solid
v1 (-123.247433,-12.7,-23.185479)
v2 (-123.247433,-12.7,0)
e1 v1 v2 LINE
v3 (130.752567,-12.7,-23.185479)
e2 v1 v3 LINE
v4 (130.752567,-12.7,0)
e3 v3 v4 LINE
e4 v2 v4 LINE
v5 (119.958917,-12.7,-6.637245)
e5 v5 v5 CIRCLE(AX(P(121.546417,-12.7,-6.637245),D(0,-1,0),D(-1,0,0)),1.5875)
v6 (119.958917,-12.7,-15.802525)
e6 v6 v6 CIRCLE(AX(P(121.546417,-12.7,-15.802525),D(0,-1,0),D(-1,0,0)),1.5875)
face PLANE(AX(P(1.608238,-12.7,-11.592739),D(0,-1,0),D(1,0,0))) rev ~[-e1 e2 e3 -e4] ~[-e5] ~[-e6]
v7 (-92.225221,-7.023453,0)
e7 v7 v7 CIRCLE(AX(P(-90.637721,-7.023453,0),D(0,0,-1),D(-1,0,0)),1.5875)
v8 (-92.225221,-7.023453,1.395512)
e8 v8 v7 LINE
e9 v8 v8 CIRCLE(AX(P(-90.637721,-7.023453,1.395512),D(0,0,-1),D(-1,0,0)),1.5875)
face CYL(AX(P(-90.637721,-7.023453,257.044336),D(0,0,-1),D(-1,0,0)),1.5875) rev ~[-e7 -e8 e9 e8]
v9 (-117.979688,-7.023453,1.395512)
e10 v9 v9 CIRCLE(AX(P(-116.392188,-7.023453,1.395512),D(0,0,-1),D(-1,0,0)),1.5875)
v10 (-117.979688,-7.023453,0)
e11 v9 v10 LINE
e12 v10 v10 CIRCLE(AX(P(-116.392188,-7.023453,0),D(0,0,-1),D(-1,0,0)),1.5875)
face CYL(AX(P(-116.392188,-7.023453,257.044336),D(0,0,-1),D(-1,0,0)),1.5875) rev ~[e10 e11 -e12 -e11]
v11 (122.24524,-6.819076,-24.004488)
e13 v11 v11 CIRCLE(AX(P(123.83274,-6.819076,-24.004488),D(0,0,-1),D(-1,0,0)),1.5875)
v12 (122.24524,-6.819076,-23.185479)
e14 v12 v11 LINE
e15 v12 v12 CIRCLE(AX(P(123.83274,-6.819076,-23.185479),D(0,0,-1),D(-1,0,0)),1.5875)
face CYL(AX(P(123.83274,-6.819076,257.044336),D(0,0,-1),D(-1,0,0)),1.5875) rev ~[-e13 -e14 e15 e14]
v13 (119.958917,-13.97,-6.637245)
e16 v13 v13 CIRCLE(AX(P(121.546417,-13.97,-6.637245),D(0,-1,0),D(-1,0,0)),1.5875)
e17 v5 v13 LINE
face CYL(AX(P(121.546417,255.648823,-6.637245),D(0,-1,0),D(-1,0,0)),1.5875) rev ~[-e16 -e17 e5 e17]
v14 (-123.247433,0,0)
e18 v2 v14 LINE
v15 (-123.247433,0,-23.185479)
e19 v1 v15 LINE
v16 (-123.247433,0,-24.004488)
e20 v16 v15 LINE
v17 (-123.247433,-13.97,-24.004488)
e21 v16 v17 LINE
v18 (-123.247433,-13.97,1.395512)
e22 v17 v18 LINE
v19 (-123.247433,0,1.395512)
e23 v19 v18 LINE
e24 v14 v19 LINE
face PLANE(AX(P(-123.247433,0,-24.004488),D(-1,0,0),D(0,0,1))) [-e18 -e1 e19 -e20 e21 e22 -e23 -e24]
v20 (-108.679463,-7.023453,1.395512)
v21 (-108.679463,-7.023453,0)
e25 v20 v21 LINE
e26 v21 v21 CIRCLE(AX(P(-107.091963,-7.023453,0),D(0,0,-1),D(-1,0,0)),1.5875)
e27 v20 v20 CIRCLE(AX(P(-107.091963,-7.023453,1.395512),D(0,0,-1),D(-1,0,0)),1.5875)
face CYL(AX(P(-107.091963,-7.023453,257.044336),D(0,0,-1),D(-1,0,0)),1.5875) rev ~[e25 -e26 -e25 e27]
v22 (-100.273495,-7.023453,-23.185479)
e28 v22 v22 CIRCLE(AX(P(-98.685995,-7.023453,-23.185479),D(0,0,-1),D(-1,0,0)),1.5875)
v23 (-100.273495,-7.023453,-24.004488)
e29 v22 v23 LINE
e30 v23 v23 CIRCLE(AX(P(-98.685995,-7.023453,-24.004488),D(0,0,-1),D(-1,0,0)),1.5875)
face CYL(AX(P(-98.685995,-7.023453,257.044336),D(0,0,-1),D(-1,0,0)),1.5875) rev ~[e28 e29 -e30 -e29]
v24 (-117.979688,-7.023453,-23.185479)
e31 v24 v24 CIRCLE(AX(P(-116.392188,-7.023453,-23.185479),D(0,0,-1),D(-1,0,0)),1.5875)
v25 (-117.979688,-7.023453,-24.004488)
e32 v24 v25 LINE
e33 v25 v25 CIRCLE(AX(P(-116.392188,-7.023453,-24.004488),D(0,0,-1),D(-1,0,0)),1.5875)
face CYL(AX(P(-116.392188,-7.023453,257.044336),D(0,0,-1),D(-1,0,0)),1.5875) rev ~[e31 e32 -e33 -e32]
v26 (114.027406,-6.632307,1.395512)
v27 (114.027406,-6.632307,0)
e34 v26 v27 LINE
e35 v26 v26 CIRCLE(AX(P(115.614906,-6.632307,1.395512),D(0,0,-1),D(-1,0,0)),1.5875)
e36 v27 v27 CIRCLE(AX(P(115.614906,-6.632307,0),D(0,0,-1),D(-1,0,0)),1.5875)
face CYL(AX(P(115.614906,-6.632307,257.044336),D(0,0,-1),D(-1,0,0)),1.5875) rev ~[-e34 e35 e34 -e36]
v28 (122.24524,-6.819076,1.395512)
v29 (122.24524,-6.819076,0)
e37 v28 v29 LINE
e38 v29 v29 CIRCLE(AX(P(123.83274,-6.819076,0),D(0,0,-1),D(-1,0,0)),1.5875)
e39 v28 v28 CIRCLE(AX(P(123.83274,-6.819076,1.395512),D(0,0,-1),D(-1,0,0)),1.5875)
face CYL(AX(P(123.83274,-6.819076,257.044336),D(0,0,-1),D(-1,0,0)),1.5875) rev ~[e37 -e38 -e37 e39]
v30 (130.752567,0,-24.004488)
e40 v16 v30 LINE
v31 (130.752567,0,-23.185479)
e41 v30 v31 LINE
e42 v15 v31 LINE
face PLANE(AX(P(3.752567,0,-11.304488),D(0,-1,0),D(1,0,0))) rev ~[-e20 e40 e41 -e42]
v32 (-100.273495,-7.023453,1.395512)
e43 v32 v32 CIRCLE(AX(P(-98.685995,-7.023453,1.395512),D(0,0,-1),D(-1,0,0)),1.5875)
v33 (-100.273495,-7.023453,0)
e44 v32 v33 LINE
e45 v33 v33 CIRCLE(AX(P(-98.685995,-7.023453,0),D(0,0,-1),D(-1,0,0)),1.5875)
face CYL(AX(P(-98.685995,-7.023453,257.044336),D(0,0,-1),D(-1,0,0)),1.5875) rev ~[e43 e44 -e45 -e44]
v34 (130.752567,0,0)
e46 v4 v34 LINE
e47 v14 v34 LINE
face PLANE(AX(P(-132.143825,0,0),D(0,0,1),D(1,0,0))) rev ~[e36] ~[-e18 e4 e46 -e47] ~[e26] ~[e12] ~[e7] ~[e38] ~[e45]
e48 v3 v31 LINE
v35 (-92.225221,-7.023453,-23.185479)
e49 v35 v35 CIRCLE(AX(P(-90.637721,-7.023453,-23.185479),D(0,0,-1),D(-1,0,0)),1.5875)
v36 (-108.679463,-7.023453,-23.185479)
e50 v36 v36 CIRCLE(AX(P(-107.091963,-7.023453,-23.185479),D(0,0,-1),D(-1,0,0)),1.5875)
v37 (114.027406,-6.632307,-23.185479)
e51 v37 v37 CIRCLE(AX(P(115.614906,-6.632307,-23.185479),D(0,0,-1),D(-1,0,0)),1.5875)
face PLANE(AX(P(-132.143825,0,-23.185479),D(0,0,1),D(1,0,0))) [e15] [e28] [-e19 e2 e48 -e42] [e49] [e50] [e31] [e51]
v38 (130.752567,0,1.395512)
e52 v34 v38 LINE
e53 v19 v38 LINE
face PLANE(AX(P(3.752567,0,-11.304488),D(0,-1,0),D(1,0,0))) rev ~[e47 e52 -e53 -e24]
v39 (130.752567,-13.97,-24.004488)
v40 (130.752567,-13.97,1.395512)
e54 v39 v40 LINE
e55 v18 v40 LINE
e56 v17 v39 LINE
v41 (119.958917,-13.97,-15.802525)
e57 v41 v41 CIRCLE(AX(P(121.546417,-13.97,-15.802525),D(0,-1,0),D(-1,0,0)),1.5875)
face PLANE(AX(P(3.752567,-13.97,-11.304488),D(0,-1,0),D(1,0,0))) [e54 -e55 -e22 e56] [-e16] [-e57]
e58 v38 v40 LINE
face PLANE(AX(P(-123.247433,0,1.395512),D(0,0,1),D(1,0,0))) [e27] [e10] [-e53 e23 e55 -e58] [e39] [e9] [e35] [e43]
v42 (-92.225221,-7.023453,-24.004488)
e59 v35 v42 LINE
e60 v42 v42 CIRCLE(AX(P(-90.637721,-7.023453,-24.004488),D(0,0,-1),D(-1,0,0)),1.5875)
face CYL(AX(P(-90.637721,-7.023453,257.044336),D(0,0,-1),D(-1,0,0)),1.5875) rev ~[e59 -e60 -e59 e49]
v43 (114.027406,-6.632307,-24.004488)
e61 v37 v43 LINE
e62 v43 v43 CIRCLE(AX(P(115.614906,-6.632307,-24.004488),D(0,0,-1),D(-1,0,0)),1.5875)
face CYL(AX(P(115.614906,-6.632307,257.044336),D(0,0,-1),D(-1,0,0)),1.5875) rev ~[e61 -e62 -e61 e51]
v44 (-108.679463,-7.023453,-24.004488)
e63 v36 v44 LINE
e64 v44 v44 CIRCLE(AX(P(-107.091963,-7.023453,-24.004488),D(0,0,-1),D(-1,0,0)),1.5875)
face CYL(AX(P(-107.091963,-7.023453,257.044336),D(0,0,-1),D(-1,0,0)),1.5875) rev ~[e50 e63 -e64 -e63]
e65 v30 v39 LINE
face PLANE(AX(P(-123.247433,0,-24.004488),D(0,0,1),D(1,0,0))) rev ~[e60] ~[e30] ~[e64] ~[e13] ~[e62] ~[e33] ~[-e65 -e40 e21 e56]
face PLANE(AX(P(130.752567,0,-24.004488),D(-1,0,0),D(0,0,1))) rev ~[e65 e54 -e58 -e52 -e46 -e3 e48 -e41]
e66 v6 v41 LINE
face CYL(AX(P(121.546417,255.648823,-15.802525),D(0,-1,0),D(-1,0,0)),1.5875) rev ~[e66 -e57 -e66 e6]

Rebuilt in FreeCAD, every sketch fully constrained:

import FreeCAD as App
import Part
import Sketcher

V = App.Vector
Q = App.Units.Quantity

doc = App.newDocument("Part")
body = doc.addObject("PartDesign::Body", "Body")

sketch1 = body.newObject("Sketcher::SketchObject", "Sketch")
sketch1.AttachmentSupport = (doc.getObject("XZ_Plane"), [""])
sketch1.MapMode = "FlatFace"
sketch1.addGeometry([
    Part.LineSegment(V(-123, 1, 0), V(-123, -24, 0)),
    Part.LineSegment(V(-123, -24, 0), V(131, -24, 0)),
    Part.LineSegment(V(131, -24, 0), V(131, 1, 0)),
    Part.LineSegment(V(131, 1, 0), V(-123, 1, 0)),
], False)
sketch1.addConstraint([
    Sketcher.Constraint("Coincident", 0, 2, 1, 1),
    Sketcher.Constraint("Coincident", 1, 2, 2, 1),
    Sketcher.Constraint("Coincident", 2, 2, 3, 1),
    Sketcher.Constraint("Coincident", 3, 2, 0, 1),
    Sketcher.Constraint("Vertical", 0),
    Sketcher.Constraint("Horizontal", 1),
    Sketcher.Constraint("Vertical", 2),
    Sketcher.Constraint("Horizontal", 3),
    Sketcher.Constraint("DistanceX", 1, 1, 1, 2, Q("10 in")),
    Sketcher.Constraint("DistanceY", 0, 2, 0, 1, Q("1 in")),
    Sketcher.Constraint("DistanceX", 0, 2, -1, 1, 123.247433),
    Sketcher.Constraint("DistanceY", 0, 2, -1, 1, 24.004488),
])
pad1 = body.newObject("PartDesign::Pad", "Pad")
pad1.Profile = sketch1
pad1.Length = Q("0.55 in")

sketch2 = body.newObject("Sketcher::SketchObject", "Sketch001")
sketch2.AttachmentSupport = (doc.getObject("XZ_Plane"), [""])
sketch2.MapMode = "FlatFace"
sketch2.addGeometry([
    Part.LineSegment(V(-132, 0, 0), V(-132, -23, 0)),
    Part.LineSegment(V(-132, -23, 0), V(135, -23, 0)),
    Part.LineSegment(V(135, -23, 0), V(135, 0, 0)),
    Part.LineSegment(V(135, 0, 0), V(-132, 0, 0)),
], False)
sketch2.addConstraint([
    Sketcher.Constraint("Coincident", 0, 2, 1, 1),
    Sketcher.Constraint("Coincident", 1, 2, 2, 1),
    Sketcher.Constraint("Coincident", 2, 2, 3, 1),
    Sketcher.Constraint("Coincident", 3, 2, 0, 1),
    Sketcher.Constraint("Vertical", 0),
    Sketcher.Constraint("Horizontal", 1),
    Sketcher.Constraint("Vertical", 2),
    Sketcher.Constraint("Horizontal", 3),
    Sketcher.Constraint("PointOnObject", 2, 2, -1),
    Sketcher.Constraint("DistanceY", 0, 2, 0, 1, 23.185479),
    Sketcher.Constraint("DistanceX", -1, 1, 1, 2, 135.360301),
    Sketcher.Constraint("DistanceX", 1, 1, 1, 2, 267.504126),
])
pocket1 = body.newObject("PartDesign::Pocket", "Pocket")
pocket1.Profile = sketch2
pocket1.Length = Q("0.5 in")
pocket1.Reversed = True

sketch3 = body.newObject("Sketcher::SketchObject", "Sketch002")
sketch3.AttachmentSupport = (doc.getObject("XY_Plane"), [""])
sketch3.MapMode = "FlatFace"
sketch3.AttachmentOffset = App.Placement(V(0, 0, 1.395512), App.Rotation())
sketch3.addGeometry([
    Part.Circle(V(123.8, -6.8, 0), V(0, 0, 1), 1.6),
    Part.Circle(V(115.6, -6.6, 0), V(0, 0, 1), 1.6),
    Part.Circle(V(-116.4, -7, 0), V(0, 0, 1), 1.6),
    Part.Circle(V(-107.1, -7, 0), V(0, 0, 1), 1.6),
    Part.Circle(V(-98.7, -7, 0), V(0, 0, 1), 1.6),
    Part.Circle(V(-90.6, -7, 0), V(0, 0, 1), 1.6),
], False)
sketch3.addConstraint([
    Sketcher.Constraint("Equal", 0, 1),
    Sketcher.Constraint("Equal", 1, 2),
    Sketcher.Constraint("Equal", 2, 3),
    Sketcher.Constraint("Equal", 3, 4),
    Sketcher.Constraint("Equal", 4, 5),
    Sketcher.Constraint("Horizontal", 2, 3, 3, 3),
    Sketcher.Constraint("Horizontal", 3, 3, 4, 3),
    Sketcher.Constraint("Horizontal", 4, 3, 5, 3),
    Sketcher.Constraint("Diameter", 0, Q("0.125 in")),
    Sketcher.Constraint("DistanceX", 4, 3, 1, 3, 214.300901),
    Sketcher.Constraint("DistanceX", -1, 1, 0, 3, 123.83274),
    Sketcher.Constraint("DistanceX", 5, 3, -1, 1, 90.637721),
    Sketcher.Constraint("DistanceY", 0, 3, 1, 3, 0.186769),
    Sketcher.Constraint("DistanceX", 3, 3, 1, 3, 222.706869),
    Sketcher.Constraint("DistanceY", 0, 3, -1, 1, 6.819076),
    Sketcher.Constraint("DistanceX", -1, 1, 1, 3, 115.614906),
    Sketcher.Constraint("DistanceX", 2, 3, -1, 1, 116.392188),
    Sketcher.Constraint("DistanceY", 2, 3, -1, 1, 7.023453),
])
doc.recompute()
hole = body.newObject("PartDesign::Hole", "Hole")
hole.Profile = sketch3
hole.ThreadType = "None"
hole.Diameter = Q("0.125 in")
hole.DepthType = "ThroughAll"

sketch4 = body.newObject("Sketcher::SketchObject", "Sketch003")
sketch4.AttachmentSupport = (doc.getObject("XZ_Plane"), [""])
sketch4.MapMode = "FlatFace"
sketch4.addGeometry([
    Part.Circle(V(121.5, -6.6, 0), V(0, 0, 1), 1.6),
    Part.Circle(V(121.5, -15.8, 0), V(0, 0, 1), 1.6),
], False)
sketch4.addConstraint([
    Sketcher.Constraint("Equal", 0, 1),
    Sketcher.Constraint("Vertical", 0, 3, 1, 3),
    Sketcher.Constraint("Diameter", 0, Q("0.125 in")),
    Sketcher.Constraint("DistanceY", 1, 3, 0, 3, 9.16528),
    Sketcher.Constraint("DistanceX", -1, 1, 0, 3, 121.546417),
    Sketcher.Constraint("DistanceY", 0, 3, -1, 1, 6.637245),
])
doc.recompute()
hole2 = body.newObject("PartDesign::Hole", "Hole001")
hole2.Profile = sketch4
hole2.ThreadType = "None"
hole2.Diameter = Q("0.125 in")
hole2.DepthType = "ThroughAll"
hole2.Reversed = True

doc.recompute()
